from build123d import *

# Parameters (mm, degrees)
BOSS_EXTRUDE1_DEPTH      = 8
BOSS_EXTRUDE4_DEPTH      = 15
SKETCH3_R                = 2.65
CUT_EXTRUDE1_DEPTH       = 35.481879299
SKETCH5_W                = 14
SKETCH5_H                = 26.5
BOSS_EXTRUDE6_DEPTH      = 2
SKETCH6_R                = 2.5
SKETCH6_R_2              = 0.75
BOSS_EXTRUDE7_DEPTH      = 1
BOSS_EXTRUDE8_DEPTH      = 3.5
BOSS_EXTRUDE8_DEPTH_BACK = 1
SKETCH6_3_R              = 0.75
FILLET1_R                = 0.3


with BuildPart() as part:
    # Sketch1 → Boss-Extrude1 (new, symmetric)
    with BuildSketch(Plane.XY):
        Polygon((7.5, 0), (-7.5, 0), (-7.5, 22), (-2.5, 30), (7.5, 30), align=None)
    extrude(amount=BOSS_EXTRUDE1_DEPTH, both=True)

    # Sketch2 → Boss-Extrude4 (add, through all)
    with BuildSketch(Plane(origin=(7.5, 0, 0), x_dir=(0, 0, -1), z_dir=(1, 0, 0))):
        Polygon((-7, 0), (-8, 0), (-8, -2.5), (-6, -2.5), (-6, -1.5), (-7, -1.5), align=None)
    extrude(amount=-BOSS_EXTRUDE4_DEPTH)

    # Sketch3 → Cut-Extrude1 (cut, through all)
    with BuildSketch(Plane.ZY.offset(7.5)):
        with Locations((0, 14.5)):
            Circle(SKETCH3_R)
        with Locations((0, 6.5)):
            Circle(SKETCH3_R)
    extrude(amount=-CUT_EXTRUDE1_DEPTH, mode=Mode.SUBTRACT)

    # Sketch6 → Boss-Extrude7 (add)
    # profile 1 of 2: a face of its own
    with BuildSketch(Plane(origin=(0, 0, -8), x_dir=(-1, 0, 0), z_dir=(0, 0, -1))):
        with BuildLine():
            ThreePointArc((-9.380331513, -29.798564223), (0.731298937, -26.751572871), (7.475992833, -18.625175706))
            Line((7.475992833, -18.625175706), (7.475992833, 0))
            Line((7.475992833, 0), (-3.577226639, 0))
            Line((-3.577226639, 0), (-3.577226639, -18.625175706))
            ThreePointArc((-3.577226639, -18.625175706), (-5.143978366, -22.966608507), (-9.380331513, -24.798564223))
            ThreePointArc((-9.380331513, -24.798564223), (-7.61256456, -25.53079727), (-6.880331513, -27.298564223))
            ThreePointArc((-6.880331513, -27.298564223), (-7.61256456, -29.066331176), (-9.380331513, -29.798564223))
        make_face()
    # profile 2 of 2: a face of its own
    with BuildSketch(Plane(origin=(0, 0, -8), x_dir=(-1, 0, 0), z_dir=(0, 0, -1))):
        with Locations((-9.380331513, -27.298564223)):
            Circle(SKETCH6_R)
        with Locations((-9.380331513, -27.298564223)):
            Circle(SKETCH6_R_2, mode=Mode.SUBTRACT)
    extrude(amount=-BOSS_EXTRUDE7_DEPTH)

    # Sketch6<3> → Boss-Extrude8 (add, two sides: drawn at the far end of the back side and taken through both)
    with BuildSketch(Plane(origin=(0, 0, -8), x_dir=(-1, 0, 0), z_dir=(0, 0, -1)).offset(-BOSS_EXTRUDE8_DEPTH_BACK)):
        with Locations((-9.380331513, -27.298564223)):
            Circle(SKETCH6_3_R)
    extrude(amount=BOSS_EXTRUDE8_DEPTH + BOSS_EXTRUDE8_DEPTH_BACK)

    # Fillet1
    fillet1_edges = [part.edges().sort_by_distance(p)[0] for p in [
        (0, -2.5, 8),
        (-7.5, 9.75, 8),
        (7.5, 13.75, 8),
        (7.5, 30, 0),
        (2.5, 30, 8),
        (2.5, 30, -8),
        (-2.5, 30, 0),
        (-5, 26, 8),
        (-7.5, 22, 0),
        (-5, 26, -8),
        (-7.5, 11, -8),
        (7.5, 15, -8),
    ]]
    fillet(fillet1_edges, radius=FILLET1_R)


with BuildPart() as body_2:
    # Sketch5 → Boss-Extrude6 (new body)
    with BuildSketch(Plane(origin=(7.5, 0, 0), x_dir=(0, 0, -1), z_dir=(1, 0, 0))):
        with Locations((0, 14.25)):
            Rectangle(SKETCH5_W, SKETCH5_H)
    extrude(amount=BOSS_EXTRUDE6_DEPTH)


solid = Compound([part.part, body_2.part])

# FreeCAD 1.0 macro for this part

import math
import FreeCAD as App
import Part
import Sketcher


def edges_at(feature, points):
    """Names of the edges that pass closest to the given points."""
    edges = feature.Shape.Edges
    near = lambda p: min(range(len(edges)), key=lambda i: edges[i].distToShape(Part.Vertex(*p))[0])
    return sorted({f"Edge{near(p) + 1}" for p in points})


def add_polygon(sketch, points):
    """Adds a closed chain of lines whose ends are joined by coincident constraints."""
    first, n = sketch.GeometryCount, len(points)
    for a, b in zip(points, points[1:] + points[:1]):
        sketch.addGeometry(Part.LineSegment(App.Vector(*a, 0), App.Vector(*b, 0)), False)
    for i in range(n):
        sketch.addConstraint(Sketcher.Constraint("Coincident", first + i, 2, first + (i + 1) % n, 1))

doc = App.newDocument("Part")
body = doc.addObject("PartDesign::Body", "Body")

sketch1 = body.newObject("Sketcher::SketchObject", "Sketch")
sketch1.AttachmentSupport = (doc.getObject("XY_Plane"), [""])
sketch1.MapMode = "FlatFace"
add_polygon(sketch1, [(-8, 0), (8, 0), (8, 30), (-2, 30), (-8, 22)])
sketch1.addConstraint(Sketcher.Constraint("Horizontal", 0))
sketch1.addConstraint(Sketcher.Constraint("Vertical", 1))
sketch1.addConstraint(Sketcher.Constraint("Horizontal", 2))
sketch1.addConstraint(Sketcher.Constraint("Vertical", 4))
sketch1.addConstraint(Sketcher.Constraint("Symmetric", 0, 2, 4, 2, -1, 1))
sketch1.addConstraint(Sketcher.Constraint("DistanceX", 0, 1, 0, 2, 15.0))
sketch1.addConstraint(Sketcher.Constraint("DistanceX", 2, 2, 2, 1, 10.0))
sketch1.addConstraint(Sketcher.Constraint("DistanceY", 1, 1, 1, 2, 30.0))
sketch1.addConstraint(Sketcher.Constraint("DistanceY", 4, 2, 4, 1, 22.0))
pad1 = body.newObject("PartDesign::Pad", "Pad")
pad1.Profile = sketch1
pad1.Length = 16
pad1.Midplane = True

sketch2 = body.newObject("Sketcher::SketchObject", "Sketch001")
sketch2.AttachmentSupport = (doc.getObject("YZ_Plane"), [""])
sketch2.MapMode = "FlatFace"
sketch2.AttachmentOffset = App.Placement(App.Vector(0, 0, 7.5), App.Rotation())
add_polygon(sketch2, [(0, 7), (0, 8), (-2.5, 8), (-2.5, 6), (-1.5, 6), (-1.5, 7)])
sketch2.addConstraint(Sketcher.Constraint("Vertical", 0))
sketch2.addConstraint(Sketcher.Constraint("Horizontal", 1))
sketch2.addConstraint(Sketcher.Constraint("Vertical", 2))
sketch2.addConstraint(Sketcher.Constraint("Horizontal", 3))
sketch2.addConstraint(Sketcher.Constraint("Vertical", 4))
sketch2.addConstraint(Sketcher.Constraint("Horizontal", 5))
sketch2.addConstraint(Sketcher.Constraint("PointOnObject", 0, 2, -2))
sketch2.addConstraint(Sketcher.Constraint("Equal", 3, 0))
sketch2.addConstraint(Sketcher.Constraint("Equal", 0, 4))
sketch2.addConstraint(Sketcher.Constraint("DistanceX", 3, 1, 3, 2, 1.0))
sketch2.addConstraint(Sketcher.Constraint("DistanceX", 1, 2, 1, 1, 2.5))
sketch2.addConstraint(Sketcher.Constraint("DistanceY", -1, 1, 0, 2, 8.0))
pad2 = body.newObject("PartDesign::Pad", "Pad001")
pad2.Profile = sketch2
pad2.Length = 15
pad2.Reversed = True

sketch3 = body.newObject("Sketcher::SketchObject", "Sketch002")
sketch3.AttachmentSupport = (doc.getObject("YZ_Plane"), [""])
sketch3.MapMode = "FlatFace"
sketch3.AttachmentOffset = App.Placement(App.Vector(0, 0, -7.5), App.Rotation())
sketch3.addGeometry(Part.Circle(App.Vector(14.5, 0, 0), App.Vector(0, 0, 1), 2.6), False)
sketch3.addGeometry(Part.Circle(App.Vector(6.5, 0, 0), App.Vector(0, 0, 1), 2.6), False)
sketch3.addConstraint(Sketcher.Constraint("Equal", 0, 1))
sketch3.addConstraint(Sketcher.Constraint("PointOnObject", 0, 3, -1))
sketch3.addConstraint(Sketcher.Constraint("PointOnObject", 1, 3, -1))
sketch3.addConstraint(Sketcher.Constraint("Diameter", 0, 5.3))
sketch3.addConstraint(Sketcher.Constraint("DistanceX", 1, 3, 0, 3, 8.0))
sketch3.addConstraint(Sketcher.Constraint("DistanceX", -1, 1, 0, 3, 14.5))
pocket1 = body.newObject("PartDesign::Pocket", "Pocket")
pocket1.Profile = sketch3
pocket1.Type = "ThroughAll"
pocket1.Reversed = True

sketch4 = body.newObject("Sketcher::SketchObject", "Sketch003")
sketch4.AttachmentSupport = (doc.getObject("XY_Plane"), [""])
sketch4.MapMode = "FlatFace"
sketch4.AttachmentOffset = App.Placement(App.Vector(0, 0, -8), App.Rotation())
sketch4.addGeometry(Part.ArcOfCircle(Part.Circle(App.Vector(9.4, -11.5, 0), App.Vector(0, 0, 1), 18.3), math.radians(-157), math.radians(-90)), False)
sketch4.addGeometry(Part.LineSegment(App.Vector(-7.5, -18.6, 0), App.Vector(-7.5, 0, 0)), False)
sketch4.addGeometry(Part.LineSegment(App.Vector(-7.5, 0, 0), App.Vector(3.6, 0, 0)), False)
sketch4.addGeometry(Part.LineSegment(App.Vector(3.6, 0, 0), App.Vector(3.6, -18.6, 0)), False)
sketch4.addGeometry(Part.ArcOfCircle(Part.Circle(App.Vector(9.4, -19, 0), App.Vector(0, 0, 1), 5.8), math.radians(176), math.radians(270)), False)
sketch4.addGeometry(Part.ArcOfCircle(Part.Circle(App.Vector(9.4, -27.3, 0), App.Vector(0, 0, 1), 2.5), math.radians(-90), math.radians(90)), False)
sketch4.addGeometry(Part.Circle(App.Vector(9.4, -27.3, 0), App.Vector(0, 0, 1), 0.8), False)
sketch4.addConstraint(Sketcher.Constraint("Coincident", 0, 1, 1, 1))
sketch4.addConstraint(Sketcher.Constraint("Coincident", 1, 2, 2, 1))
sketch4.addConstraint(Sketcher.Constraint("Coincident", 2, 2, 3, 1))
sketch4.addConstraint(Sketcher.Constraint("Coincident", 3, 2, 4, 1))
sketch4.addConstraint(Sketcher.Constraint("Tangent", 4, 2, 5, 2))
sketch4.addConstraint(Sketcher.Constraint("Tangent", 5, 1, 0, 2))
sketch4.addConstraint(Sketcher.Constraint("Vertical", 1))
sketch4.addConstraint(Sketcher.Constraint("Horizontal", 2))
sketch4.addConstraint(Sketcher.Constraint("Vertical", 3))
sketch4.addConstraint(Sketcher.Constraint("Coincident", 6, 3, 5, 3))
sketch4.addConstraint(Sketcher.Constraint("PointOnObject", 1, 2, -1))
sketch4.addConstraint(Sketcher.Constraint("Horizontal", 0, 1, 3, 2))
sketch4.addConstraint(Sketcher.Constraint("Vertical", 0, 3, 4, 3))
sketch4.addConstraint(Sketcher.Constraint("Vertical", 4, 3, 5, 3))
sketch4.addConstraint(Sketcher.Constraint("Diameter", 6, 1.5))
sketch4.addConstraint(Sketcher.Constraint("Radius", 5, 2.5))
sketch4.addConstraint(Sketcher.Constraint("Radius", 4, 5.81421))
sketch4.addConstraint(Sketcher.Constraint("Radius", 0, 18.301533))
sketch4.addConstraint(Sketcher.Constraint("DistanceX", 2, 1, 2, 2, 11.053219))
sketch4.addConstraint(Sketcher.Constraint("DistanceY", 1, 1, 1, 2, 18.625176))
sketch4.addConstraint(Sketcher.Constraint("DistanceX", -1, 1, 0, 3, 9.380332))
pad3 = body.newObject("PartDesign::Pad", "Pad002")
pad3.Profile = sketch4
pad3.Length = 1

sketch5 = body.newObject("Sketcher::SketchObject", "Sketch004")
sketch5.AttachmentSupport = (doc.getObject("XY_Plane"), [""])
sketch5.MapMode = "FlatFace"
sketch5.AttachmentOffset = App.Placement(App.Vector(0, 0, -8), App.Rotation())
sketch5.addGeometry(Part.Circle(App.Vector(9.4, -27.3, 0), App.Vector(0, 0, 1), 0.8), False)
sketch5.addConstraint(Sketcher.Constraint("Diameter", 0, 1.5))
sketch5.addConstraint(Sketcher.Constraint("DistanceX", -1, 1, 0, 3, 9.380332))
sketch5.addConstraint(Sketcher.Constraint("DistanceY", 0, 3, -1, 1, 27.298564))
pad4 = body.newObject("PartDesign::Pad", "Pad003")
pad4.Profile = sketch5
pad4.Type = "TwoLengths"
pad4.Length = 3.5
pad4.Length2 = 1
pad4.Reversed = True
doc.recompute()

fillet = body.newObject("PartDesign::Fillet", "Fillet")
fillet.Base = (pad4, edges_at(pad4, [
    (0, -2.5, 8),
    (-7.5, 9.75, 8),
    (7.5, 13.75, 8),
    (7.5, 30, 0),
    (2.5, 30, 8),
    (2.5, 30, -8),
    (-2.5, 30, 0),
    (-5, 26, 8),
    (-7.5, 22, 0),
    (-5, 26, -8),
    (-7.5, 11, -8),
    (7.5, 15, -8),
]))
fillet.Radius = 0.3
body2 = doc.addObject("PartDesign::Body", "Body001")

sketch6 = body2.newObject("Sketcher::SketchObject", "Sketch005")
sketch6.AttachmentSupport = (doc.getObject("YZ_Plane001"), [""])
sketch6.MapMode = "FlatFace"
sketch6.AttachmentOffset = App.Placement(App.Vector(0, 0, 7.5), App.Rotation())
add_polygon(sketch6, [(28, 7), (1, 7), (1, -7), (28, -7)])
sketch6.addConstraint(Sketcher.Constraint("Horizontal", 0))
sketch6.addConstraint(Sketcher.Constraint("Vertical", 1))
sketch6.addConstraint(Sketcher.Constraint("Horizontal", 2))
sketch6.addConstraint(Sketcher.Constraint("Vertical", 3))
sketch6.addConstraint(Sketcher.Constraint("DistanceY", 1, 2, 1, 1, 14.0))
sketch6.addConstraint(Sketcher.Constraint("DistanceX", 0, 2, 0, 1, 26.5))
sketch6.addConstraint(Sketcher.Constraint("DistanceX", -1, 1, 0, 2, 1.0))
sketch6.addConstraint(Sketcher.Constraint("DistanceY", -1, 1, 0, 2, 7.0))
pad5 = body2.newObject("PartDesign::Pad", "Pad004")
pad5.Profile = sketch6
pad5.Length = 2

doc.recompute()
